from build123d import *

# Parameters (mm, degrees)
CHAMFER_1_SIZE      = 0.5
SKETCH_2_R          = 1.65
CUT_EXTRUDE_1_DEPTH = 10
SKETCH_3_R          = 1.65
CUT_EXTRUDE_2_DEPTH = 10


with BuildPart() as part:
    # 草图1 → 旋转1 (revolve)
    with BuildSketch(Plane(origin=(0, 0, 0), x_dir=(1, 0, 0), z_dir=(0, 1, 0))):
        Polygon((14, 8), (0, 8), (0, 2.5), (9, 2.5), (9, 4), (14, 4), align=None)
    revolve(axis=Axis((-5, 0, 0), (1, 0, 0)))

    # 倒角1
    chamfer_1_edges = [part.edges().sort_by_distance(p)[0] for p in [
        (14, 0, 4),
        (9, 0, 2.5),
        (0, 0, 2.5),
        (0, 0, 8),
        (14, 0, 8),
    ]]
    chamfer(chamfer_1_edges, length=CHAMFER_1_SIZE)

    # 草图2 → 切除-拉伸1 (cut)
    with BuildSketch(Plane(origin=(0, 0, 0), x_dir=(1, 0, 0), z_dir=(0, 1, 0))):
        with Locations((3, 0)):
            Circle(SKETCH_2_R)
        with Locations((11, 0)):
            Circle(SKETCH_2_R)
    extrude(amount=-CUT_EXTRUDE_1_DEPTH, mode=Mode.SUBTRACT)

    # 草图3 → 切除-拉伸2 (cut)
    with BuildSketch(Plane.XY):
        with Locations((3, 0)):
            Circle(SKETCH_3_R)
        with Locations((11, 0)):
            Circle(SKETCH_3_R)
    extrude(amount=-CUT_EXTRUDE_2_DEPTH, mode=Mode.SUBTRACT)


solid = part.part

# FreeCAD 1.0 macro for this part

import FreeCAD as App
import Part
import Sketcher

V = App.Vector
Q = App.Units.Quantity


def edges_at(feature, points):
    """Names of the edges that pass closest to the given points."""
    edges = feature.Shape.Edges
    near = lambda p: min(range(len(edges)), key=lambda i: edges[i].distToShape(Part.Vertex(*p))[0])
    return sorted({f"Edge{near(p) + 1}" for p in points})


def add_polygon(sketch, points):
    """Adds a closed chain of lines whose ends are joined by coincident constraints."""
    first, n = sketch.GeometryCount, len(points)
    for a, b in zip(points, points[1:] + points[:1]):
        sketch.addGeometry(Part.LineSegment(App.Vector(*a, 0), App.Vector(*b, 0)), False)
    for i in range(n):
        sketch.addConstraint(Sketcher.Constraint("Coincident", first + i, 2, first + (i + 1) % n, 1))

doc = App.newDocument("Part")
params = doc.addObject("Spreadsheet::Sheet", "Params")
for row, (alias, value) in enumerate([
    ("sketch1_width", "14 mm"),
    ("sketch1_width2", "9 mm"),
    ("sketch1_height", "4 mm"),
    ("sketch1_height2", "5.5 mm"),
    ("revolution_angle", "360 deg"),
    ("chamfer_size", "0.5 mm"),
    ("sketch2_diameter", "3.3 mm"),
    ("pocket1_length", "10 mm"),
    ("sketch3_diameter", "3.3 mm"),
    ("pocket2_length", "10 mm"),
], start=1):
    params.set(f"A{row}", alias)
    params.set(f"B{row}", "=" + value)
    params.setAlias(f"B{row}", alias)

body = doc.addObject("PartDesign::Body", "Body")

# Sketch on XZ plane
sketch1 = body.newObject("Sketcher::SketchObject", "Sketch")
sketch1.AttachmentSupport = (doc.getObject("XZ_Plane"), [""])
sketch1.MapMode = "FlatFace"
add_polygon(sketch1, [(14, -8), (0, -8), (0, -2.5), (9, -2.5), (9, -4), (14, -4)])  # lines 0-5
sketch1.addConstraint([
    Sketcher.Constraint("Horizontal", 0),
    Sketcher.Constraint("Vertical", 1),
    Sketcher.Constraint("Horizontal", 2),
    Sketcher.Constraint("Vertical", 3),
    Sketcher.Constraint("Horizontal", 4),
    Sketcher.Constraint("Vertical", 5),
    Sketcher.Constraint("PointOnObject", 0, 2, -2),
    Sketcher.Constraint("DistanceX", 0, 2, 0, 1, Q("14 mm")),
    Sketcher.Constraint("DistanceX", 2, 1, 2, 2, Q("9 mm")),
    Sketcher.Constraint("DistanceY", 5, 2, 5, 1, Q("4 mm")),
    Sketcher.Constraint("DistanceY", 1, 1, 1, 2, Q("5.5 mm")),
    Sketcher.Constraint("DistanceY", 0, 2, -1, 1, Q("8 mm")),
])
sketch1.setExpression("Constraints[13]", "Params.sketch1_width")
sketch1.setExpression("Constraints[14]", "Params.sketch1_width2")
sketch1.setExpression("Constraints[15]", "Params.sketch1_height")
sketch1.setExpression("Constraints[16]", "Params.sketch1_height2")
revolution = body.newObject("PartDesign::Revolution", "Revolution")
revolution.Profile = sketch1
revolution.ReferenceAxis = (sketch1, ["H_Axis"])
revolution.setExpression("Angle", "Params.revolution_angle")
doc.recompute()

chamfer = body.newObject("PartDesign::Chamfer", "Chamfer")
chamfer.Base = (revolution, edges_at(revolution, [
    (14, 0, 4),
    (9, 0, 2.5),
    (0, 0, 2.5),
    (0, 0, 8),
    (14, 0, 8),
]))
chamfer.setExpression("Size", "Params.chamfer_size")

# Sketch on XZ plane
sketch2 = body.newObject("Sketcher::SketchObject", "Sketch001")
sketch2.AttachmentSupport = (doc.getObject("XZ_Plane"), [""])
sketch2.MapMode = "FlatFace"
sketch2.addGeometry([
    Part.Circle(V(3, 0, 0), V(0, 0, 1), 1.6),
    Part.Circle(V(11, 0, 0), V(0, 0, 1), 1.6),
], False)
sketch2.addConstraint([
    Sketcher.Constraint("Equal", 0, 1),
    Sketcher.Constraint("PointOnObject", 0, 3, -1),
    Sketcher.Constraint("PointOnObject", 1, 3, -1),
    Sketcher.Constraint("Diameter", 0, Q("3.3 mm")),
    Sketcher.Constraint("DistanceX", -1, 1, 0, 3, Q("3 mm")),
    Sketcher.Constraint("DistanceX", -1, 1, 1, 3, Q("11 mm")),
])
sketch2.setExpression("Constraints[3]", "Params.sketch2_diameter")
pocket1 = body.newObject("PartDesign::Pocket", "Pocket")
pocket1.Profile = sketch2
pocket1.setExpression("Length", "Params.pocket1_length")
pocket1.Reversed = True

# Sketch on XY plane
sketch3 = body.newObject("Sketcher::SketchObject", "Sketch002")
sketch3.AttachmentSupport = (doc.getObject("XY_Plane"), [""])
sketch3.MapMode = "FlatFace"
sketch3.addGeometry([
    Part.Circle(V(3, 0, 0), V(0, 0, 1), 1.6),
    Part.Circle(V(11, 0, 0), V(0, 0, 1), 1.6),
], False)
sketch3.addConstraint([
    Sketcher.Constraint("Equal", 0, 1),
    Sketcher.Constraint("PointOnObject", 0, 3, -1),
    Sketcher.Constraint("PointOnObject", 1, 3, -1),
    Sketcher.Constraint("Diameter", 0, Q("3.3 mm")),
    Sketcher.Constraint("DistanceX", -1, 1, 0, 3, Q("3 mm")),
    Sketcher.Constraint("DistanceX", -1, 1, 1, 3, Q("11 mm")),
])
sketch3.setExpression("Constraints[3]", "Params.sketch3_diameter")
pocket2 = body.newObject("PartDesign::Pocket", "Pocket001")
pocket2.Profile = sketch3
pocket2.setExpression("Length", "Params.pocket2_length")

doc.recompute()
